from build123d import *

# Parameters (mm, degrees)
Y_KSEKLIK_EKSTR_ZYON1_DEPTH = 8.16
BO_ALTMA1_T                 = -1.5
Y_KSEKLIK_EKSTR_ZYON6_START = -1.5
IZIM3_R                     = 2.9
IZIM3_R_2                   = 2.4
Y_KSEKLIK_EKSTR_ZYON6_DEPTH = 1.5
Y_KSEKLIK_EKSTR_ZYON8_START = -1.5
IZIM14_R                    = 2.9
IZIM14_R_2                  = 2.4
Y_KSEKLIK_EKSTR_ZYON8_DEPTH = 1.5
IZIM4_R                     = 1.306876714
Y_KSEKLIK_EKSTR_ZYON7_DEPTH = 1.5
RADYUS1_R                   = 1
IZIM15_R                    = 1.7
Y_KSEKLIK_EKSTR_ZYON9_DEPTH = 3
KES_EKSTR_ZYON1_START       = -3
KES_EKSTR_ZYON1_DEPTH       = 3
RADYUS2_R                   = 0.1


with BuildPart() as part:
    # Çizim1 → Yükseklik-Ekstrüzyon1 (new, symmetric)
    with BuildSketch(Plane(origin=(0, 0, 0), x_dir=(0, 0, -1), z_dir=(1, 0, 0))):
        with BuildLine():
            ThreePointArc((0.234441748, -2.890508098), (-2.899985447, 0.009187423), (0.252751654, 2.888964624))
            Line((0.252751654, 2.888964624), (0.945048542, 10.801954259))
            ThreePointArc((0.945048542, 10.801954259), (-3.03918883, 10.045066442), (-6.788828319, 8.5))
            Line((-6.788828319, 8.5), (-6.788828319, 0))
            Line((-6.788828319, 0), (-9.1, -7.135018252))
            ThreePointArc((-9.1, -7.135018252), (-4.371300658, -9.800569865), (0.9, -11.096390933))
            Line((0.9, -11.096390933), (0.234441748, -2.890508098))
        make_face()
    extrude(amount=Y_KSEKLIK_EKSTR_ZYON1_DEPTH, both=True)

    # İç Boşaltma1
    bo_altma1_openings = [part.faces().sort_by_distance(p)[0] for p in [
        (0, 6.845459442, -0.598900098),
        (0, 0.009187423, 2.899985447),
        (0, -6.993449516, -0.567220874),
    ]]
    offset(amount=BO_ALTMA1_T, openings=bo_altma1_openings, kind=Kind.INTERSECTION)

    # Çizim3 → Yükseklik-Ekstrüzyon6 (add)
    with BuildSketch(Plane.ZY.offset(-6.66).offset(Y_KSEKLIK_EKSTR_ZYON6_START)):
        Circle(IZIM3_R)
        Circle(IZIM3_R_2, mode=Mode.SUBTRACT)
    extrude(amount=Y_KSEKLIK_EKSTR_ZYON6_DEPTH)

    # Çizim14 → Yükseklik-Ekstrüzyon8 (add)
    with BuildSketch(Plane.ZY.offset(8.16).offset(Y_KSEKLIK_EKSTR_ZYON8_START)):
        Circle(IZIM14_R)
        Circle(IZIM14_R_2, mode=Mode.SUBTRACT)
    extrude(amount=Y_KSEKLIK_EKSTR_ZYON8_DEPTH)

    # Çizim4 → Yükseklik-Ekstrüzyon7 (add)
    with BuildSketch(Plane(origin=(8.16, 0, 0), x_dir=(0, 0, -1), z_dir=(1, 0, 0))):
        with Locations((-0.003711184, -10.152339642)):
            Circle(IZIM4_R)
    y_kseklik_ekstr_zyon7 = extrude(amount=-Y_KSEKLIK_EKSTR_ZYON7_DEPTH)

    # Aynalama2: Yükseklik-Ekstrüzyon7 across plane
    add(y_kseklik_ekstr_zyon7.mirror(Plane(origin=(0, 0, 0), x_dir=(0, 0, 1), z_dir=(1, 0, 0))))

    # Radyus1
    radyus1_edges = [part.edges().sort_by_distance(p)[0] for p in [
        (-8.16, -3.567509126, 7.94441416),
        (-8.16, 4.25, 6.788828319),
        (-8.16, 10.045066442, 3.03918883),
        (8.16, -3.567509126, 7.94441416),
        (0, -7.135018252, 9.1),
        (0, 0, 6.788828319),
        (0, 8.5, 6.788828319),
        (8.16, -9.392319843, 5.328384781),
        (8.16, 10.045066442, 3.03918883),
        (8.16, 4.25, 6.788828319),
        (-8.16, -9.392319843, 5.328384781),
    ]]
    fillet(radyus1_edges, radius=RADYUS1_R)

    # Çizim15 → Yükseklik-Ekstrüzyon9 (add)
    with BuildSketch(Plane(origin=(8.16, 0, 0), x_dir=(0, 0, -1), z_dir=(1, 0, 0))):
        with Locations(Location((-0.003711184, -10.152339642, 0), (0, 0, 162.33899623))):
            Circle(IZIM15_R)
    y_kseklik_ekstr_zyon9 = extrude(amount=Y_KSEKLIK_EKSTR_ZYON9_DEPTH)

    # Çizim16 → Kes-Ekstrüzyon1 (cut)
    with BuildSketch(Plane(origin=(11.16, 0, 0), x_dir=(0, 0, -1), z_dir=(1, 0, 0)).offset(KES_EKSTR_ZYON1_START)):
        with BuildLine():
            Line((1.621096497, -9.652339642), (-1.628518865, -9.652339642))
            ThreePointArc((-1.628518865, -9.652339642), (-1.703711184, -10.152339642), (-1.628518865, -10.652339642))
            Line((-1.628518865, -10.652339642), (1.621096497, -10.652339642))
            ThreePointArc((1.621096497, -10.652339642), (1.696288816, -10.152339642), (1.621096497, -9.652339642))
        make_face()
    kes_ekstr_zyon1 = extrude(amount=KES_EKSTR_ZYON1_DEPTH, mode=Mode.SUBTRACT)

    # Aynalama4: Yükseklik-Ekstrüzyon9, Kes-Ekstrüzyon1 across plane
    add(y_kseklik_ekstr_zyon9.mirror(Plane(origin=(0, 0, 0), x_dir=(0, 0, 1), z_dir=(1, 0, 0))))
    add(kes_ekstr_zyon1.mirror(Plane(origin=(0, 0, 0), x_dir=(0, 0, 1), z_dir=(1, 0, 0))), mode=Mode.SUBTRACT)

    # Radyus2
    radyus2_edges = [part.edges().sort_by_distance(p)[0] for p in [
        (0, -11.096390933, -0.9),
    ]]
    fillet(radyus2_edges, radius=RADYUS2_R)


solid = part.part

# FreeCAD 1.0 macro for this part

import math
import FreeCAD as App
import Part
import Sketcher
from FreeCAD import Vector
Q = App.Units.Quantity


def edges_at(feature, points):
    """Names of the edges that pass closest to the given points."""
    edges = feature.Shape.Edges
    near = lambda p: min(range(len(edges)), key=lambda i: edges[i].distToShape(Part.Vertex(*p))[0])
    return sorted({f"Edge{near(p) + 1}" for p in points})


def faces_at(feature, points):
    """Names of the faces that lie closest to the given points."""
    faces = feature.Shape.Faces
    near = lambda p: min(range(len(faces)), key=lambda i: faces[i].distToShape(Part.Vertex(*p))[0])
    return sorted({f"Face{near(p) + 1}" for p in points})

doc = App.newDocument("Part")
params = doc.addObject("Spreadsheet::Sheet", "Params")
for row, (alias, value) in enumerate([
    ("sketch1_radius", "20 mm"),
    ("sketch1_radius2", "2.9 mm"),
    ("sketch1_width", "8.5 mm"),
    ("sketch1_length", "7.5 mm"),
    ("pad1_length", "16.32 mm"),
    ("thickness_wall", "1.5 mm"),
    ("sketch2_diameter", "5.8 mm"),
    ("sketch2_diameter2", "4.8 mm"),
    ("pad2_length", "1.5 mm"),
    ("sketch3_diameter", "5.8 mm"),
    ("sketch3_diameter2", "4.8 mm"),
    ("pad3_length", "1.5 mm"),
    ("pad4_length", "1.5 mm"),
    ("fillet_radius", "1 mm"),
    ("sketch5_diameter", "3.4 mm"),
    ("pad5_length", "3 mm"),
    ("sketch6_radius", "1.7 mm"),
    ("pocket1_length", "3 mm"),
    ("fillet2_radius", "0.1 mm"),
], start=1):
    params.set(f"A{row}", alias)
    params.set(f"B{row}", "=" + value)
    params.setAlias(f"B{row}", alias)

body = doc.addObject("PartDesign::Body", "Body")

# Sketch on YZ plane
sketch1 = body.newObject("Sketcher::SketchObject", "Sketch")
sketch1.AttachmentSupport = (doc.getObject("YZ_Plane"), [""])
sketch1.MapMode = "FlatFace"
sketch1.addGeometry([
    Part.ArcOfCircle(Part.Circle(Vector(0, 0, 0), Vector(0, 0, 1), 2.9), math.radians(-5), math.radians(185)),  # 0
    Part.LineSegment(Vector(2.9, -0.3, 0), Vector(10.8, -0.9, 0)),  # 1
    Part.ArcOfCircle(Part.Circle(Vector(-9.1, -2.7, 0), Vector(0, 0, 1), 20), math.radians(5), math.radians(28)),  # 2
    Part.LineSegment(Vector(8.5, 6.8, 0), Vector(0, 6.8, 0)),  # 3
    Part.LineSegment(Vector(0, 6.8, 0), Vector(-7.1, 9.1, 0)),  # 4
    Part.ArcOfCircle(Part.Circle(Vector(8.8, -3, 0), Vector(0, 0, 1), 20), math.radians(143), math.radians(174)),  # 5
    Part.LineSegment(Vector(-11.1, -0.9, 0), Vector(-2.9, -0.2, 0)),  # 6
], False)
sketch1.addConstraint([
    Sketcher.Constraint("Coincident", 0, 1, 1, 1),
    Sketcher.Constraint("Coincident", 1, 2, 2, 1),
    Sketcher.Constraint("Coincident", 2, 2, 3, 1),
    Sketcher.Constraint("Coincident", 3, 2, 4, 1),
    Sketcher.Constraint("Coincident", 4, 2, 5, 1),
    Sketcher.Constraint("Coincident", 5, 2, 6, 1),
    Sketcher.Constraint("Coincident", 6, 2, 0, 2),
    Sketcher.Constraint("Horizontal", 3),
    Sketcher.Constraint("Coincident", 0, 3, -1, 1),
    Sketcher.Constraint("Equal", 2, 5),
    Sketcher.Constraint("PointOnObject", 3, 2, -2),
    Sketcher.Constraint("Radius", 2, 20.0),
    Sketcher.Constraint("Radius", 0, 2.9),
    Sketcher.Constraint("Angle", 1, Q("-5 deg")),
    Sketcher.Constraint("DistanceX", 3, 2, 3, 1, 8.5),
    Sketcher.Constraint("DistanceY", 5, 2, 4, 2, 10.0),
    Sketcher.Constraint("Distance", 4, 7.5),
    Sketcher.Constraint("DistanceY", -1, 1, 4, 2, 9.1),
    Sketcher.Constraint("DistanceX", 2, 3, 0, 1, 12.012801),
    Sketcher.Constraint("DistanceY", 2, 3, 0, 1, 2.413599),
    Sketcher.Constraint("Distance", 6, 8.232829),
    Sketcher.Constraint("DistanceY", 2, 3, -1, 1, 2.66635),
    Sketcher.Constraint("DistanceX", 6, 2, -1, 1, 2.890508),
])
sketch1.setExpression("Constraints[11]", "Params.sketch1_radius")
sketch1.setExpression("Constraints[12]", "Params.sketch1_radius2")
sketch1.setExpression("Constraints[14]", "Params.sketch1_width")
sketch1.setExpression("Constraints[16]", "Params.sketch1_length")
pad1 = body.newObject("PartDesign::Pad", "Pad")
pad1.Profile = sketch1
pad1.setExpression("Length", "Params.pad1_length")
pad1.Midplane = True
doc.recompute()

thickness = body.newObject("PartDesign::Thickness", "Thickness")
thickness.Base = (pad1, faces_at(pad1, [(0, 6.845, -0.599), (0, 0.009, 2.9), (0, -6.993, -0.567)]))
thickness.setExpression("Value", "Params.thickness_wall")
thickness.Reversed = True
thickness.Join = "Intersection"

# Sketch on YZ plane
sketch2 = body.newObject("Sketcher::SketchObject", "Sketch001")
sketch2.AttachmentSupport = (doc.getObject("YZ_Plane"), [""])
sketch2.MapMode = "FlatFace"
sketch2.AttachmentOffset = App.Placement(Vector(0, 0, 8.16), App.Rotation())
sketch2.addGeometry([
    Part.Circle(Vector(0, 0, 0), Vector(0, 0, 1), 2.9),
    Part.Circle(Vector(0, 0, 0), Vector(0, 0, 1), 2.4),
], False)
sketch2.addConstraint([
    Sketcher.Constraint("Coincident", 0, 3, -1, 1),
    Sketcher.Constraint("Coincident", 1, 3, -1, 1),
    Sketcher.Constraint("Diameter", 0, 5.8),
    Sketcher.Constraint("Diameter", 1, 4.8),
])
sketch2.setExpression("Constraints[2]", "Params.sketch2_diameter")
sketch2.setExpression("Constraints[3]", "Params.sketch2_diameter2")
pad2 = body.newObject("PartDesign::Pad", "Pad001")
pad2.Profile = sketch2
pad2.setExpression("Length", "Params.pad2_length")
pad2.Reversed = True

# Sketch on YZ plane
sketch3 = body.newObject("Sketcher::SketchObject", "Sketch002")
sketch3.AttachmentSupport = (doc.getObject("YZ_Plane"), [""])
sketch3.MapMode = "FlatFace"
sketch3.AttachmentOffset = App.Placement(Vector(0, 0, -6.66), App.Rotation())
sketch3.addGeometry([
    Part.Circle(Vector(0, 0, 0), Vector(0, 0, 1), 2.9),
    Part.Circle(Vector(0, 0, 0), Vector(0, 0, 1), 2.4),
], False)
sketch3.addConstraint([
    Sketcher.Constraint("Coincident", 0, 3, -1, 1),
    Sketcher.Constraint("Coincident", 1, 3, -1, 1),
    Sketcher.Constraint("Diameter", 0, 5.8),
    Sketcher.Constraint("Diameter", 1, 4.8),
])
sketch3.setExpression("Constraints[2]", "Params.sketch3_diameter")
sketch3.setExpression("Constraints[3]", "Params.sketch3_diameter2")
pad3 = body.newObject("PartDesign::Pad", "Pad002")
pad3.Profile = sketch3
pad3.setExpression("Length", "Params.pad3_length")
pad3.Reversed = True

# Sketch on YZ plane
sketch4 = body.newObject("Sketcher::SketchObject", "Sketch003")
sketch4.AttachmentSupport = (doc.getObject("YZ_Plane"), [""])
sketch4.MapMode = "FlatFace"
sketch4.AttachmentOffset = App.Placement(Vector(0, 0, 8.16), App.Rotation())
sketch4.addGeometry(Part.Circle(Vector(-10.2, 0, 0), Vector(0, 0, 1), 1.3), False)
sketch4.addConstraint([
    Sketcher.Constraint("Diameter", 0, 2.613753),
    Sketcher.Constraint("DistanceX", 0, 3, -1, 1, 10.15234),
    Sketcher.Constraint("DistanceY", -1, 1, 0, 3, 0.003711),
])
pad4 = body.newObject("PartDesign::Pad", "Pad003")
pad4.Profile = sketch4
pad4.setExpression("Length", "Params.pad4_length")
pad4.Reversed = True
doc.recompute()

mirrored = body.newObject("PartDesign::Mirrored", "Mirrored")
mirrored.Originals = [pad4]
mirrored.MirrorPlane = (doc.getObject("YZ_Plane"), [""])
body.Tip = mirrored
doc.recompute()

fillet = body.newObject("PartDesign::Fillet", "Fillet")
fillet.Base = (mirrored, edges_at(mirrored, [
    (-8.16, -3.568, 7.944),
    (-8.16, 4.25, 6.789),
    (-8.16, 10.045, 3.039),
    (8.16, -3.568, 7.944),
    (0, -7.135, 9.1),
    (0, 0, 6.789),
    (0, 8.5, 6.789),
    (8.16, -9.392, 5.328),
    (8.16, 10.045, 3.039),
    (8.16, 4.25, 6.789),
    (-8.16, -9.392, 5.328),
]))
fillet.setExpression("Radius", "Params.fillet_radius")

# Sketch on YZ plane
sketch5 = body.newObject("Sketcher::SketchObject", "Sketch004")
sketch5.AttachmentSupport = (doc.getObject("YZ_Plane"), [""])
sketch5.MapMode = "FlatFace"
sketch5.AttachmentOffset = App.Placement(Vector(0, 0, 8.16), App.Rotation())
sketch5.addGeometry(Part.Circle(Vector(-10.2, 0, 0), Vector(0, 0, 1), 1.7), False)
sketch5.addConstraint([
    Sketcher.Constraint("Diameter", 0, 3.4),
    Sketcher.Constraint("DistanceX", 0, 3, -1, 1, 10.15234),
    Sketcher.Constraint("DistanceY", -1, 1, 0, 3, 0.003711),
])
sketch5.setExpression("Constraints[0]", "Params.sketch5_diameter")
pad5 = body.newObject("PartDesign::Pad", "Pad004")
pad5.Profile = sketch5
pad5.setExpression("Length", "Params.pad5_length")

# Sketch on YZ plane
sketch6 = body.newObject("Sketcher::SketchObject", "Sketch005")
sketch6.AttachmentSupport = (doc.getObject("YZ_Plane"), [""])
sketch6.MapMode = "FlatFace"
sketch6.AttachmentOffset = App.Placement(Vector(0, 0, 8.16), App.Rotation())
sketch6.addGeometry([
    Part.LineSegment(Vector(-9.7, -1.6, 0), Vector(-9.7, 1.6, 0)),
    Part.ArcOfCircle(Part.Circle(Vector(-10.2, 0, 0), Vector(0, 0, 1), 1.7), math.radians(73), math.radians(107)),
    Part.LineSegment(Vector(-10.7, 1.6, 0), Vector(-10.7, -1.6, 0)),
    Part.ArcOfCircle(Part.Circle(Vector(-10.2, 0, 0), Vector(0, 0, 1), 1.7), math.radians(-107), math.radians(-73)),
], False)
sketch6.addConstraint([
    Sketcher.Constraint("Coincident", 0, 2, 1, 1),
    Sketcher.Constraint("Coincident", 1, 2, 2, 1),
    Sketcher.Constraint("Coincident", 2, 2, 3, 1),
    Sketcher.Constraint("Coincident", 3, 2, 0, 1),
    Sketcher.Constraint("Vertical", 0),
    Sketcher.Constraint("Vertical", 2),
    Sketcher.Constraint("Coincident", 3, 3, 1, 3),
    Sketcher.Constraint("Equal", 1, 3),
    Sketcher.Constraint("Horizontal", 0, 2, 1, 2),
    Sketcher.Constraint("Radius", 1, 1.7),
    Sketcher.Constraint("DistanceX", 1, 2, 0, 2, 1.0),
    Sketcher.Constraint("DistanceX", 1, 3, -1, 1, 10.15234),
    Sketcher.Constraint("DistanceY", -1, 1, 1, 3, 0.003711),
])
sketch6.setExpression("Constraints[9]", "Params.sketch6_radius")
pocket1 = body.newObject("PartDesign::Pocket", "Pocket")
pocket1.Profile = sketch6
pocket1.setExpression("Length", "Params.pocket1_length")
pocket1.Reversed = True
doc.recompute()

mirrored2 = body.newObject("PartDesign::Mirrored", "Mirrored001")
mirrored2.Originals = [pad5, pocket1]
mirrored2.MirrorPlane = (doc.getObject("YZ_Plane"), [""])
body.Tip = mirrored2
doc.recompute()

fillet2 = body.newObject("PartDesign::Fillet", "Fillet001")
fillet2.Base = (mirrored2, edges_at(mirrored2, [(0, -11.096, -0.9)]))
fillet2.setExpression("Radius", "Params.fillet2_radius")

doc.recompute()
